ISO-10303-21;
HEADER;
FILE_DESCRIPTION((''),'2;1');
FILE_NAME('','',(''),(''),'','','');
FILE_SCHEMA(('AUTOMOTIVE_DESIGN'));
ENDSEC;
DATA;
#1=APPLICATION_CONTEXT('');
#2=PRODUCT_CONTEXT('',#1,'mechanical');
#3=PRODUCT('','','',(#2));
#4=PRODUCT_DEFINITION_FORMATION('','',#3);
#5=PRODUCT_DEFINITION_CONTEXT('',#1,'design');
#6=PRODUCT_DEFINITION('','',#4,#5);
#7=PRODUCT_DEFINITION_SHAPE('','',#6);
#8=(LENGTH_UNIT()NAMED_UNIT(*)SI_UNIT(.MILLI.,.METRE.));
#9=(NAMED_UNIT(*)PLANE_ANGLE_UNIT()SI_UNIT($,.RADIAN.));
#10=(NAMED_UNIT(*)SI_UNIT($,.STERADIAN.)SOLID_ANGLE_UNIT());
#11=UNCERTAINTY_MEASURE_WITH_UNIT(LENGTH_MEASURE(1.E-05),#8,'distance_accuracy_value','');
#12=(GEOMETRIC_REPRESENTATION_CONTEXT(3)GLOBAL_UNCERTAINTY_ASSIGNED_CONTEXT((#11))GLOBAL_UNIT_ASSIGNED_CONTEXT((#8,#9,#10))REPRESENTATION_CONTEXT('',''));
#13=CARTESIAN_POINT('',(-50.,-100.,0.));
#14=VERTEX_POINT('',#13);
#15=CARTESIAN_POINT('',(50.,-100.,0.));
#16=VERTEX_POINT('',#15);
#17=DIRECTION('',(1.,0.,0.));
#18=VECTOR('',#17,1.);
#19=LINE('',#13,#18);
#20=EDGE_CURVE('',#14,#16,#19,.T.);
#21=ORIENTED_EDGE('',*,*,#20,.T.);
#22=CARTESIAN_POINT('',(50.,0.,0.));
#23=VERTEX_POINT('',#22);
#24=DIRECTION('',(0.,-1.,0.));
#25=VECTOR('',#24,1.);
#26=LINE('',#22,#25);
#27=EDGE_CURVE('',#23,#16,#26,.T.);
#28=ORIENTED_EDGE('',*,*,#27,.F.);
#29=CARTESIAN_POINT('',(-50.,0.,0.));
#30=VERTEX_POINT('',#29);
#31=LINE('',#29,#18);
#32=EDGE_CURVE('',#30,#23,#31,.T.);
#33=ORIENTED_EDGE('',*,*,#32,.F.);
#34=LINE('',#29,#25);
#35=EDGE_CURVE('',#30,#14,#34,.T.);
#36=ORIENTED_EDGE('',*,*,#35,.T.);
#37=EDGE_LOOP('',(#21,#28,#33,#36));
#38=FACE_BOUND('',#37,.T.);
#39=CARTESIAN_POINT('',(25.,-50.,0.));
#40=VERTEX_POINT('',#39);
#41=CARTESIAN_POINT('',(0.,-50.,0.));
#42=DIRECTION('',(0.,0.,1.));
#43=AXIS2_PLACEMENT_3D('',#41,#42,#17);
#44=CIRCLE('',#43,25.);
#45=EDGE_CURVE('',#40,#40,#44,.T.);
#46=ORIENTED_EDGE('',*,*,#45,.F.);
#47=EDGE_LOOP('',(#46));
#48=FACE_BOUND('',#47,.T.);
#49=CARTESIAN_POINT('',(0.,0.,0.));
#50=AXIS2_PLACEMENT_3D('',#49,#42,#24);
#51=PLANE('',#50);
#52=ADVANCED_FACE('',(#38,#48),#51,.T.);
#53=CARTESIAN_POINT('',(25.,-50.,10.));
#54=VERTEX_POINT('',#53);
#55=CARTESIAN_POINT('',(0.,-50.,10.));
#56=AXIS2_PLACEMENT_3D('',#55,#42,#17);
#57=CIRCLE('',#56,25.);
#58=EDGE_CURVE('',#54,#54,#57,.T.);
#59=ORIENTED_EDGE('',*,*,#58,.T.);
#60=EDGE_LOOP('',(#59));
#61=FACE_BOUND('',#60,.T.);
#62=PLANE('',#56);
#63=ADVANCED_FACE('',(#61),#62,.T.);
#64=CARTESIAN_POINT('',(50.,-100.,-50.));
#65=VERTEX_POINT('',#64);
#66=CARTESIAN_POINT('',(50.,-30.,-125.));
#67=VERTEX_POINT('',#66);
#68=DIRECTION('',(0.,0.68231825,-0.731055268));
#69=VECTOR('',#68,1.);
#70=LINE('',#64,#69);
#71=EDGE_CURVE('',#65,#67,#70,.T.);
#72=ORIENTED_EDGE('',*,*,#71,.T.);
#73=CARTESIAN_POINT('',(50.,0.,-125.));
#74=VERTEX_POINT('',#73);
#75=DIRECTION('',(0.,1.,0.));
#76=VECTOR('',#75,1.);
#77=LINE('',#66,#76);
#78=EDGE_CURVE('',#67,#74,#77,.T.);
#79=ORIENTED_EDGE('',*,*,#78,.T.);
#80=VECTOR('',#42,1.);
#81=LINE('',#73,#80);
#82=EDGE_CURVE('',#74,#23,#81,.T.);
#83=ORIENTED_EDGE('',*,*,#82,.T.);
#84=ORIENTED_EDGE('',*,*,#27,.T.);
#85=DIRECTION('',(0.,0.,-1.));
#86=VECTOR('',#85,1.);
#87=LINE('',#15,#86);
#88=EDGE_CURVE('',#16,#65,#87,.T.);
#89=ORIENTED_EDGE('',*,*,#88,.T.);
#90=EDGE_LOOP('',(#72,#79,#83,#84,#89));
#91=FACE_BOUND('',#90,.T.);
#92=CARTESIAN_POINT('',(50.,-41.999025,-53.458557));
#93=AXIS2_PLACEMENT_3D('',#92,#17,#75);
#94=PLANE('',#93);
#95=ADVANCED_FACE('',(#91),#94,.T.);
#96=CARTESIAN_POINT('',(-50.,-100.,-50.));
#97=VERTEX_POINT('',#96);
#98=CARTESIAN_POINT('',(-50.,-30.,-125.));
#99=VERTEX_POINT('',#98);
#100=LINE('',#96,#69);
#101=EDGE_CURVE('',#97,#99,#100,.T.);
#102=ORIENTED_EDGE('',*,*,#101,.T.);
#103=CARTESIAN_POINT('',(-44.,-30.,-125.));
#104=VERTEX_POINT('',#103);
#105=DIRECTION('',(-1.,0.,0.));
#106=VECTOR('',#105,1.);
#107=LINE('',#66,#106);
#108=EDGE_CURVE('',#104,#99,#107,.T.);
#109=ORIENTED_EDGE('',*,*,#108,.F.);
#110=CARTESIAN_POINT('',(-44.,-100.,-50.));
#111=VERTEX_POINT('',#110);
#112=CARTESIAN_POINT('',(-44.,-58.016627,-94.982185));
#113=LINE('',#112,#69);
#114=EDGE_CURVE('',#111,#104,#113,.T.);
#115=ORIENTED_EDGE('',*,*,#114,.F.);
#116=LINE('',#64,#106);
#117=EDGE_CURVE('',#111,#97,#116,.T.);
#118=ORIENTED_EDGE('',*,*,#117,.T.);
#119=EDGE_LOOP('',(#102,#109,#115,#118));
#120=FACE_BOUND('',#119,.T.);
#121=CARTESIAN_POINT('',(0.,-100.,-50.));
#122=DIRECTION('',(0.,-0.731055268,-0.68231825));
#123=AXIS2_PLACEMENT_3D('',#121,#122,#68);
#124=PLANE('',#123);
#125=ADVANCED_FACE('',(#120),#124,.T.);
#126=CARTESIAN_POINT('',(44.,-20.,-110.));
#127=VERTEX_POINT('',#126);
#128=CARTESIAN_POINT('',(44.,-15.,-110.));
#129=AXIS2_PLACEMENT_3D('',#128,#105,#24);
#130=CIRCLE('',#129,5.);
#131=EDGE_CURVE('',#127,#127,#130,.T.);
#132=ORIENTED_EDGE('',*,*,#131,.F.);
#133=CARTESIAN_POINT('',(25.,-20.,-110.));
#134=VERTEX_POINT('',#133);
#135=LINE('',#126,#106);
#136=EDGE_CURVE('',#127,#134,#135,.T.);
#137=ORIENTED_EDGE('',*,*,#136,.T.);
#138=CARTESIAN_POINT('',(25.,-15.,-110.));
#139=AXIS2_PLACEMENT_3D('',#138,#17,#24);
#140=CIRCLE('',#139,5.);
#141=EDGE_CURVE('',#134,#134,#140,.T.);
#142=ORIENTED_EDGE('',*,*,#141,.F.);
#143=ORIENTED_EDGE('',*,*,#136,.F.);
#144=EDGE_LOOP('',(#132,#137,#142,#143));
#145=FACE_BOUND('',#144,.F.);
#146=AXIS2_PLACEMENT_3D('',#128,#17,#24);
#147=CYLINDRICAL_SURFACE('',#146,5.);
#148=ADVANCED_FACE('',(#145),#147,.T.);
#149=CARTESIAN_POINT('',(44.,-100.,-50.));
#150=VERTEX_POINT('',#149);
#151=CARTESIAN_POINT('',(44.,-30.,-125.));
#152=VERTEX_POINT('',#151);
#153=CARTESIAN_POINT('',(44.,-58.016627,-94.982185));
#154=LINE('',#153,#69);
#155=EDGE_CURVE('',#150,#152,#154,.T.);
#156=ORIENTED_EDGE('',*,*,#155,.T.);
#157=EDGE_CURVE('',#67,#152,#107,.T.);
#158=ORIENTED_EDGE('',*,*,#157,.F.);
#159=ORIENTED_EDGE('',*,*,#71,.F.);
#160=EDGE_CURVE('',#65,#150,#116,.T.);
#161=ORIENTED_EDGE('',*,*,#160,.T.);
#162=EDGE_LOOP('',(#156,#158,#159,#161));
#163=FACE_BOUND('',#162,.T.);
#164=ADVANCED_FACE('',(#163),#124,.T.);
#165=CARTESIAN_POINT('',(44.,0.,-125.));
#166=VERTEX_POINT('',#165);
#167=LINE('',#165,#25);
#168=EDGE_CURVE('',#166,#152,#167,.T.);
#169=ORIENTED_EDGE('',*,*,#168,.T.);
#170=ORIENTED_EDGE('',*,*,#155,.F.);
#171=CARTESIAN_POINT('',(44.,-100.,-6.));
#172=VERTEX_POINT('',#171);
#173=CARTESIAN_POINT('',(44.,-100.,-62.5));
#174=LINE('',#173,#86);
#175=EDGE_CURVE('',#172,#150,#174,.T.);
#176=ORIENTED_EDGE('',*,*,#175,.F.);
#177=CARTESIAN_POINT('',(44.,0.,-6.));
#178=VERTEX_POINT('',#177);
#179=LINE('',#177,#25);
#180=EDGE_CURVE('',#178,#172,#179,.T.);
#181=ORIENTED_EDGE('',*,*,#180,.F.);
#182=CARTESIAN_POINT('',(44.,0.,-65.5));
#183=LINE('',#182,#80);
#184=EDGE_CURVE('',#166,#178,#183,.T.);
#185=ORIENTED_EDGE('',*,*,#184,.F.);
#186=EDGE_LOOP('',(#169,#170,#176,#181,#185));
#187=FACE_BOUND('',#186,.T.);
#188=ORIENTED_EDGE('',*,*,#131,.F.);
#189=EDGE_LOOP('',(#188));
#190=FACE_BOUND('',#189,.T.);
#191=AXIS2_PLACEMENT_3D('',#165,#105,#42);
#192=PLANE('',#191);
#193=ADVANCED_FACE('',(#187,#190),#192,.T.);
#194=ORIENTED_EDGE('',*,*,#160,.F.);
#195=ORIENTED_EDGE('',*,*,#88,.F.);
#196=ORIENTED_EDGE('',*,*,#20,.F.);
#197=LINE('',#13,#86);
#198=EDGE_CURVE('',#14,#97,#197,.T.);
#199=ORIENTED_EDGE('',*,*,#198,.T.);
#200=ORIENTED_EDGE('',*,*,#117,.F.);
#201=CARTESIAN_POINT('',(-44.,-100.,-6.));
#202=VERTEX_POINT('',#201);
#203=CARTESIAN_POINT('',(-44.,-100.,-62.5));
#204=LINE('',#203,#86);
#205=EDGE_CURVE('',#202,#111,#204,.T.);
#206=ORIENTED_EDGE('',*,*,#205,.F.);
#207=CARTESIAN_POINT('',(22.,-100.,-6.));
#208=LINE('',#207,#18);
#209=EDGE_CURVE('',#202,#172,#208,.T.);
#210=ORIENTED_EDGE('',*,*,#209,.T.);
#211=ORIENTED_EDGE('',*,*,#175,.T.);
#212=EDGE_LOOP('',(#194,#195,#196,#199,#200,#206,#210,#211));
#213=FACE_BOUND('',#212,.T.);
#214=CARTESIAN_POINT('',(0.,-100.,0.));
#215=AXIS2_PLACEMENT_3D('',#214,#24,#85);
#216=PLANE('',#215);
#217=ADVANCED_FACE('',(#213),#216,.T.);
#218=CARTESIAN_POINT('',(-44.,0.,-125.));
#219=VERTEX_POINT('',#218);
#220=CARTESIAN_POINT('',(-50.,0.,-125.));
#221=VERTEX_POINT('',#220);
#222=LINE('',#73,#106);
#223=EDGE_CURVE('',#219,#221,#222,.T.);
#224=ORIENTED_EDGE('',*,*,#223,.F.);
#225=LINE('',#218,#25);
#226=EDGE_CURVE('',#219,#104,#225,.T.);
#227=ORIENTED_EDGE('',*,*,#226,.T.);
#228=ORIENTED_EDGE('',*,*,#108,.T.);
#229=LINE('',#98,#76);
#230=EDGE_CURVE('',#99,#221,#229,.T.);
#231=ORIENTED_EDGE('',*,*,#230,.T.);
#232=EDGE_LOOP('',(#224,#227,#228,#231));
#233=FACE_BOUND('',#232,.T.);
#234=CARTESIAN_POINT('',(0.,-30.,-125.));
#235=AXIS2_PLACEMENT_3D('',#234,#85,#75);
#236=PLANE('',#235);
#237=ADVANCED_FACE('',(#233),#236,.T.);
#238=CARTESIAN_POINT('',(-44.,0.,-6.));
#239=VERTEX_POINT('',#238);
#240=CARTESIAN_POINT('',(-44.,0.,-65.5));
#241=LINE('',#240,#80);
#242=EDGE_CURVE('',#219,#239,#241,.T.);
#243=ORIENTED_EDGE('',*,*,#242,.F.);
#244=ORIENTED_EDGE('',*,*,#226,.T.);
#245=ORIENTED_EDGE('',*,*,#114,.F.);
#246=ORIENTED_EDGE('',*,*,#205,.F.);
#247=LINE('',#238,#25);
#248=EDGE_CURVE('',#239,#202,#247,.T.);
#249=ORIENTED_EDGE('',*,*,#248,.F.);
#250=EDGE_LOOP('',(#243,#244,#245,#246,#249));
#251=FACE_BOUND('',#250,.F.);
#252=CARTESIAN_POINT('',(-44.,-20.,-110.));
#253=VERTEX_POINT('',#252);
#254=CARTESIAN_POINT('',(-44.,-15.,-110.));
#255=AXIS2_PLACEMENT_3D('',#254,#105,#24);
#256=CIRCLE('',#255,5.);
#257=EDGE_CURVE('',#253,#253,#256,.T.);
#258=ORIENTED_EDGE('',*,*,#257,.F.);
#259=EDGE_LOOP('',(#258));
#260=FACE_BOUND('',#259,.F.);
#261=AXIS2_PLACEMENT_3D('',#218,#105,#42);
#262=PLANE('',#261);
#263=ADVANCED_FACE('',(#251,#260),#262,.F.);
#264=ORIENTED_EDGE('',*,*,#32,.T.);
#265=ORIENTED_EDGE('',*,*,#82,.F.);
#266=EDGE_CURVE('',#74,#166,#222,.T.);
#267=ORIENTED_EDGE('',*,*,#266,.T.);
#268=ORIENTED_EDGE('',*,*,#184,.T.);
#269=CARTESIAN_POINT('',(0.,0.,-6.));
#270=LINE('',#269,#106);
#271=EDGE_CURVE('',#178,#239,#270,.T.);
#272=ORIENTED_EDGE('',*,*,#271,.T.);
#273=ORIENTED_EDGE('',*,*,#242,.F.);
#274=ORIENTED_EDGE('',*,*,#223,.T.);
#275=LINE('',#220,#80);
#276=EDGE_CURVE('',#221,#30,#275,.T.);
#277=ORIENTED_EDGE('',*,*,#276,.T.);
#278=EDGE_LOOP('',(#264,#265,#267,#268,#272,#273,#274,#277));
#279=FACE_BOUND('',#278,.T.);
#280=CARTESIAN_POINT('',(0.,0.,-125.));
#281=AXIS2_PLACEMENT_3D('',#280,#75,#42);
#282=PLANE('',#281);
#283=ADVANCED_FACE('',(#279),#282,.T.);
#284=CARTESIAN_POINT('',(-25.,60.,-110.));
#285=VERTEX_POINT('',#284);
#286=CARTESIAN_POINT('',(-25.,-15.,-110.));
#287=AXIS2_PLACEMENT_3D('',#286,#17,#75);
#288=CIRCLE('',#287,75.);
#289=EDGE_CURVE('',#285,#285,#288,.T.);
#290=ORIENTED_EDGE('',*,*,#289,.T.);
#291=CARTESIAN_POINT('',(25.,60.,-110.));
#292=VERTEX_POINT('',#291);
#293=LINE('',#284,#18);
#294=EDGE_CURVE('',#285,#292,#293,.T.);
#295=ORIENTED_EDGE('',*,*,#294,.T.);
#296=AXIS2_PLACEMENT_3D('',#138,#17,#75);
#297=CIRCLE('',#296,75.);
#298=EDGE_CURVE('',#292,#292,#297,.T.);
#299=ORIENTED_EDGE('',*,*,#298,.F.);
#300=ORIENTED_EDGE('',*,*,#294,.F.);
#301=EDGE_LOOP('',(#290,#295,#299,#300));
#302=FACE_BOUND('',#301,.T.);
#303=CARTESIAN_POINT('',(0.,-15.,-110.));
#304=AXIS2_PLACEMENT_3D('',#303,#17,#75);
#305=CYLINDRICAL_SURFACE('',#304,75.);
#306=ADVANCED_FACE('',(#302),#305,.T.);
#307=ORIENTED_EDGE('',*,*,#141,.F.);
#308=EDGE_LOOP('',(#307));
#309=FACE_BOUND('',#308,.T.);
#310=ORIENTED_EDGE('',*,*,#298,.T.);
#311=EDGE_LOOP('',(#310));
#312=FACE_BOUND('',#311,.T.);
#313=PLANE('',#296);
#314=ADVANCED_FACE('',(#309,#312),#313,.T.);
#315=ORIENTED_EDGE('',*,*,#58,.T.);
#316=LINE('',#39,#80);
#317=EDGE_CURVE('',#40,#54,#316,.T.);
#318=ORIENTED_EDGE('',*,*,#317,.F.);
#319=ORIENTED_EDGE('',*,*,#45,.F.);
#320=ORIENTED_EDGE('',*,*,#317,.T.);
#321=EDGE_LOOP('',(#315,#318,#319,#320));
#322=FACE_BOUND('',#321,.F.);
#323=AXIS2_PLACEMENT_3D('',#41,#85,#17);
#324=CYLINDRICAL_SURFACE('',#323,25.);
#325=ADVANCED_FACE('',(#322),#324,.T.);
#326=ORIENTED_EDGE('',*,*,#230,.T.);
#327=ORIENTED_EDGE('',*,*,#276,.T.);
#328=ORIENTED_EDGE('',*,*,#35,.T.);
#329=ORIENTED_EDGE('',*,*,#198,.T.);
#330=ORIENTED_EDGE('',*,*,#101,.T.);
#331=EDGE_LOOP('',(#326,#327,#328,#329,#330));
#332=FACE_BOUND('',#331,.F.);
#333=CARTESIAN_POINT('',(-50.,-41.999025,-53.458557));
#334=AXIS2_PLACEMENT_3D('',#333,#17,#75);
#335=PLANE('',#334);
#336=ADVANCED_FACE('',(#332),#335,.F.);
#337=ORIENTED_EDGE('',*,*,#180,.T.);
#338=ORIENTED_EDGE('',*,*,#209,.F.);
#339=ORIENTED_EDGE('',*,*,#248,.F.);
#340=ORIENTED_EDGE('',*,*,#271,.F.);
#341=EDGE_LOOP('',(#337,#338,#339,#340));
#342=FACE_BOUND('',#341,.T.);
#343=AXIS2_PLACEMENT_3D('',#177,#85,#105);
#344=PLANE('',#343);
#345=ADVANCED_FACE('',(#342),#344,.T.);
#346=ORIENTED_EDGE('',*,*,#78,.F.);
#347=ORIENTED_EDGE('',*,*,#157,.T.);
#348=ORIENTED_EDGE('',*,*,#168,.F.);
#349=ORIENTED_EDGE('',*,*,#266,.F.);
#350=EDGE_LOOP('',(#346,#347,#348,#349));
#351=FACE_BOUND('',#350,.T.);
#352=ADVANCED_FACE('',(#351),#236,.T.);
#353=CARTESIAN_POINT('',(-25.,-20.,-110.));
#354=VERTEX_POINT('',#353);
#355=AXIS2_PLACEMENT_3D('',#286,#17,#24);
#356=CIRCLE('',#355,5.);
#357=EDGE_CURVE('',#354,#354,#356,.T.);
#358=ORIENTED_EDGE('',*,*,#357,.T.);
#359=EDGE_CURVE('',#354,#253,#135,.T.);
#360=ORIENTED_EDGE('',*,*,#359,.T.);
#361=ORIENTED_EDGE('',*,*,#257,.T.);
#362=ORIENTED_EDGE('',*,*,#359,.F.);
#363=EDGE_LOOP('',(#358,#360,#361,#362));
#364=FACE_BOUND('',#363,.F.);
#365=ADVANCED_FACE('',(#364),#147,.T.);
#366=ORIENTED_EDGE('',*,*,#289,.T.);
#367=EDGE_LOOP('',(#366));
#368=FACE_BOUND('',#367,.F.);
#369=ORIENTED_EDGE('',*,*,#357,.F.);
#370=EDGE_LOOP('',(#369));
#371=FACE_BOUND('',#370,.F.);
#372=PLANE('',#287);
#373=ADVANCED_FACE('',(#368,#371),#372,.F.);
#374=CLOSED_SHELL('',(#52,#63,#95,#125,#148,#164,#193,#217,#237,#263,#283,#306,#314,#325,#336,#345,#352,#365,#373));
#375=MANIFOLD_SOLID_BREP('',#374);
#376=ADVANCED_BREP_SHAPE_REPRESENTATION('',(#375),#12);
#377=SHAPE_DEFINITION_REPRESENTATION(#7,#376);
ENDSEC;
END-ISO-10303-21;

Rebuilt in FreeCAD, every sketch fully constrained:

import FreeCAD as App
import Part
import Sketcher
Q = App.Units.Quantity


def add_polygon(sketch, points):
    """Adds a closed chain of lines whose ends are joined by coincident constraints."""
    first, n = sketch.GeometryCount, len(points)
    for a, b in zip(points, points[1:] + points[:1]):
        sketch.addGeometry(Part.LineSegment(App.Vector(*a, 0), App.Vector(*b, 0)), False)
    for i in range(n):
        sketch.addConstraint(Sketcher.Constraint("Coincident", first + i, 2, first + (i + 1) % n, 1))

doc = App.newDocument("Part")
body = doc.addObject("PartDesign::Body", "Body")

# Sketch on YZ plane
sketch1 = body.newObject("Sketcher::SketchObject", "Sketch")
sketch1.AttachmentSupport = (doc.getObject("YZ_Plane"), [""])
sketch1.MapMode = "FlatFace"
add_polygon(sketch1, [(0, -125), (0, 0), (-100, 0), (-100, -50), (-30, -125)])  # lines 0-4
sketch1.addConstraint([
    Sketcher.Constraint("Vertical", 0),
    Sketcher.Constraint("Horizontal", 1),
    Sketcher.Constraint("Vertical", 2),
    Sketcher.Constraint("Horizontal", 4),
    Sketcher.Constraint("Coincident", 0, 2, -1, 1),
    Sketcher.Constraint("DistanceX", 1, 2, 1, 1, Q("100 mm")),
    Sketcher.Constraint("DistanceX", 4, 1, 4, 2, Q("30 mm")),
    Sketcher.Constraint("DistanceY", 0, 1, 0, 2, Q("125 mm")),
    Sketcher.Constraint("DistanceY", 2, 2, 2, 1, Q("50 mm")),
])
pad1 = body.newObject("PartDesign::Pad", "Pad")
pad1.Profile = sketch1
pad1.Length = 100
pad1.Midplane = True

# Sketch on XZ plane
sketch2 = body.newObject("Sketcher::SketchObject", "Sketch001")
sketch2.AttachmentSupport = (doc.getObject("XZ_Plane"), [""])
sketch2.MapMode = "FlatFace"
add_polygon(sketch2, [(44, -6), (44, -125), (-44, -125), (-44, -6)])  # lines 0-3
sketch2.addConstraint([
    Sketcher.Constraint("Vertical", 0),
    Sketcher.Constraint("Horizontal", 1),
    Sketcher.Constraint("Vertical", 2),
    Sketcher.Constraint("Horizontal", 3),
    Sketcher.Constraint("DistanceX", 1, 2, 1, 1, Q("88 mm")),
    Sketcher.Constraint("DistanceY", 0, 2, 0, 1, Q("119 mm")),
    Sketcher.Constraint("DistanceX", -1, 1, 0, 2, Q("44 mm")),
    Sketcher.Constraint("DistanceY", 0, 2, -1, 1, Q("125 mm")),
])
pocket1 = body.newObject("PartDesign::Pocket", "Pocket")
pocket1.Profile = sketch2
pocket1.Type = "ThroughAll"
pocket1.Reversed = True

# Sketch on YZ plane
sketch3 = body.newObject("Sketcher::SketchObject", "Sketch002")
sketch3.AttachmentSupport = (doc.getObject("YZ_Plane"), [""])
sketch3.MapMode = "FlatFace"
sketch3.AttachmentOffset = App.Placement(App.Vector(0, 0, 44), App.Rotation())
sketch3.addGeometry(Part.Circle(App.Vector(-15, -110, 0), App.Vector(0, 0, 1), 5), False)
sketch3.addConstraint([
    Sketcher.Constraint("Diameter", 0, Q("10 mm")),
    Sketcher.Constraint("DistanceX", 0, 3, -1, 1, Q("15 mm")),
    Sketcher.Constraint("DistanceY", 0, 3, -1, 1, Q("110 mm")),
])
pad2 = body.newObject("PartDesign::Pad", "Pad001")
pad2.Profile = sketch3
pad2.Type = "UpToLast"
pad2.Reversed = True

# Sketch on XY plane
sketch4 = body.newObject("Sketcher::SketchObject", "Sketch003")
sketch4.AttachmentSupport = (doc.getObject("XY_Plane"), [""])
sketch4.MapMode = "FlatFace"
sketch4.addGeometry(Part.Circle(App.Vector(0, -50, 0), App.Vector(0, 0, 1), 25), False)
sketch4.addConstraint([
    Sketcher.Constraint("PointOnObject", 0, 3, -2),
    Sketcher.Constraint("Diameter", 0, Q("50 mm")),
    Sketcher.Constraint("DistanceY", 0, 3, -1, 1, Q("50 mm")),
])
pad3 = body.newObject("PartDesign::Pad", "Pad002")
pad3.Profile = sketch4
pad3.Length = 10

# Sketch on YZ plane
sketch5 = body.newObject("Sketcher::SketchObject", "Sketch004")
sketch5.AttachmentSupport = (doc.getObject("YZ_Plane"), [""])
sketch5.MapMode = "FlatFace"
sketch5.addGeometry(Part.Circle(App.Vector(-15, -110, 0), App.Vector(0, 0, 1), 75), False)
sketch5.addConstraint([
    Sketcher.Constraint("Diameter", 0, Q("150 mm")),
    Sketcher.Constraint("DistanceX", 0, 3, -1, 1, Q("15 mm")),
    Sketcher.Constraint("DistanceY", 0, 3, -1, 1, Q("110 mm")),
])
pad4 = body.newObject("PartDesign::Pad", "Pad003")
pad4.Profile = sketch5
pad4.Length = 50
pad4.Midplane = True

doc.recompute()
